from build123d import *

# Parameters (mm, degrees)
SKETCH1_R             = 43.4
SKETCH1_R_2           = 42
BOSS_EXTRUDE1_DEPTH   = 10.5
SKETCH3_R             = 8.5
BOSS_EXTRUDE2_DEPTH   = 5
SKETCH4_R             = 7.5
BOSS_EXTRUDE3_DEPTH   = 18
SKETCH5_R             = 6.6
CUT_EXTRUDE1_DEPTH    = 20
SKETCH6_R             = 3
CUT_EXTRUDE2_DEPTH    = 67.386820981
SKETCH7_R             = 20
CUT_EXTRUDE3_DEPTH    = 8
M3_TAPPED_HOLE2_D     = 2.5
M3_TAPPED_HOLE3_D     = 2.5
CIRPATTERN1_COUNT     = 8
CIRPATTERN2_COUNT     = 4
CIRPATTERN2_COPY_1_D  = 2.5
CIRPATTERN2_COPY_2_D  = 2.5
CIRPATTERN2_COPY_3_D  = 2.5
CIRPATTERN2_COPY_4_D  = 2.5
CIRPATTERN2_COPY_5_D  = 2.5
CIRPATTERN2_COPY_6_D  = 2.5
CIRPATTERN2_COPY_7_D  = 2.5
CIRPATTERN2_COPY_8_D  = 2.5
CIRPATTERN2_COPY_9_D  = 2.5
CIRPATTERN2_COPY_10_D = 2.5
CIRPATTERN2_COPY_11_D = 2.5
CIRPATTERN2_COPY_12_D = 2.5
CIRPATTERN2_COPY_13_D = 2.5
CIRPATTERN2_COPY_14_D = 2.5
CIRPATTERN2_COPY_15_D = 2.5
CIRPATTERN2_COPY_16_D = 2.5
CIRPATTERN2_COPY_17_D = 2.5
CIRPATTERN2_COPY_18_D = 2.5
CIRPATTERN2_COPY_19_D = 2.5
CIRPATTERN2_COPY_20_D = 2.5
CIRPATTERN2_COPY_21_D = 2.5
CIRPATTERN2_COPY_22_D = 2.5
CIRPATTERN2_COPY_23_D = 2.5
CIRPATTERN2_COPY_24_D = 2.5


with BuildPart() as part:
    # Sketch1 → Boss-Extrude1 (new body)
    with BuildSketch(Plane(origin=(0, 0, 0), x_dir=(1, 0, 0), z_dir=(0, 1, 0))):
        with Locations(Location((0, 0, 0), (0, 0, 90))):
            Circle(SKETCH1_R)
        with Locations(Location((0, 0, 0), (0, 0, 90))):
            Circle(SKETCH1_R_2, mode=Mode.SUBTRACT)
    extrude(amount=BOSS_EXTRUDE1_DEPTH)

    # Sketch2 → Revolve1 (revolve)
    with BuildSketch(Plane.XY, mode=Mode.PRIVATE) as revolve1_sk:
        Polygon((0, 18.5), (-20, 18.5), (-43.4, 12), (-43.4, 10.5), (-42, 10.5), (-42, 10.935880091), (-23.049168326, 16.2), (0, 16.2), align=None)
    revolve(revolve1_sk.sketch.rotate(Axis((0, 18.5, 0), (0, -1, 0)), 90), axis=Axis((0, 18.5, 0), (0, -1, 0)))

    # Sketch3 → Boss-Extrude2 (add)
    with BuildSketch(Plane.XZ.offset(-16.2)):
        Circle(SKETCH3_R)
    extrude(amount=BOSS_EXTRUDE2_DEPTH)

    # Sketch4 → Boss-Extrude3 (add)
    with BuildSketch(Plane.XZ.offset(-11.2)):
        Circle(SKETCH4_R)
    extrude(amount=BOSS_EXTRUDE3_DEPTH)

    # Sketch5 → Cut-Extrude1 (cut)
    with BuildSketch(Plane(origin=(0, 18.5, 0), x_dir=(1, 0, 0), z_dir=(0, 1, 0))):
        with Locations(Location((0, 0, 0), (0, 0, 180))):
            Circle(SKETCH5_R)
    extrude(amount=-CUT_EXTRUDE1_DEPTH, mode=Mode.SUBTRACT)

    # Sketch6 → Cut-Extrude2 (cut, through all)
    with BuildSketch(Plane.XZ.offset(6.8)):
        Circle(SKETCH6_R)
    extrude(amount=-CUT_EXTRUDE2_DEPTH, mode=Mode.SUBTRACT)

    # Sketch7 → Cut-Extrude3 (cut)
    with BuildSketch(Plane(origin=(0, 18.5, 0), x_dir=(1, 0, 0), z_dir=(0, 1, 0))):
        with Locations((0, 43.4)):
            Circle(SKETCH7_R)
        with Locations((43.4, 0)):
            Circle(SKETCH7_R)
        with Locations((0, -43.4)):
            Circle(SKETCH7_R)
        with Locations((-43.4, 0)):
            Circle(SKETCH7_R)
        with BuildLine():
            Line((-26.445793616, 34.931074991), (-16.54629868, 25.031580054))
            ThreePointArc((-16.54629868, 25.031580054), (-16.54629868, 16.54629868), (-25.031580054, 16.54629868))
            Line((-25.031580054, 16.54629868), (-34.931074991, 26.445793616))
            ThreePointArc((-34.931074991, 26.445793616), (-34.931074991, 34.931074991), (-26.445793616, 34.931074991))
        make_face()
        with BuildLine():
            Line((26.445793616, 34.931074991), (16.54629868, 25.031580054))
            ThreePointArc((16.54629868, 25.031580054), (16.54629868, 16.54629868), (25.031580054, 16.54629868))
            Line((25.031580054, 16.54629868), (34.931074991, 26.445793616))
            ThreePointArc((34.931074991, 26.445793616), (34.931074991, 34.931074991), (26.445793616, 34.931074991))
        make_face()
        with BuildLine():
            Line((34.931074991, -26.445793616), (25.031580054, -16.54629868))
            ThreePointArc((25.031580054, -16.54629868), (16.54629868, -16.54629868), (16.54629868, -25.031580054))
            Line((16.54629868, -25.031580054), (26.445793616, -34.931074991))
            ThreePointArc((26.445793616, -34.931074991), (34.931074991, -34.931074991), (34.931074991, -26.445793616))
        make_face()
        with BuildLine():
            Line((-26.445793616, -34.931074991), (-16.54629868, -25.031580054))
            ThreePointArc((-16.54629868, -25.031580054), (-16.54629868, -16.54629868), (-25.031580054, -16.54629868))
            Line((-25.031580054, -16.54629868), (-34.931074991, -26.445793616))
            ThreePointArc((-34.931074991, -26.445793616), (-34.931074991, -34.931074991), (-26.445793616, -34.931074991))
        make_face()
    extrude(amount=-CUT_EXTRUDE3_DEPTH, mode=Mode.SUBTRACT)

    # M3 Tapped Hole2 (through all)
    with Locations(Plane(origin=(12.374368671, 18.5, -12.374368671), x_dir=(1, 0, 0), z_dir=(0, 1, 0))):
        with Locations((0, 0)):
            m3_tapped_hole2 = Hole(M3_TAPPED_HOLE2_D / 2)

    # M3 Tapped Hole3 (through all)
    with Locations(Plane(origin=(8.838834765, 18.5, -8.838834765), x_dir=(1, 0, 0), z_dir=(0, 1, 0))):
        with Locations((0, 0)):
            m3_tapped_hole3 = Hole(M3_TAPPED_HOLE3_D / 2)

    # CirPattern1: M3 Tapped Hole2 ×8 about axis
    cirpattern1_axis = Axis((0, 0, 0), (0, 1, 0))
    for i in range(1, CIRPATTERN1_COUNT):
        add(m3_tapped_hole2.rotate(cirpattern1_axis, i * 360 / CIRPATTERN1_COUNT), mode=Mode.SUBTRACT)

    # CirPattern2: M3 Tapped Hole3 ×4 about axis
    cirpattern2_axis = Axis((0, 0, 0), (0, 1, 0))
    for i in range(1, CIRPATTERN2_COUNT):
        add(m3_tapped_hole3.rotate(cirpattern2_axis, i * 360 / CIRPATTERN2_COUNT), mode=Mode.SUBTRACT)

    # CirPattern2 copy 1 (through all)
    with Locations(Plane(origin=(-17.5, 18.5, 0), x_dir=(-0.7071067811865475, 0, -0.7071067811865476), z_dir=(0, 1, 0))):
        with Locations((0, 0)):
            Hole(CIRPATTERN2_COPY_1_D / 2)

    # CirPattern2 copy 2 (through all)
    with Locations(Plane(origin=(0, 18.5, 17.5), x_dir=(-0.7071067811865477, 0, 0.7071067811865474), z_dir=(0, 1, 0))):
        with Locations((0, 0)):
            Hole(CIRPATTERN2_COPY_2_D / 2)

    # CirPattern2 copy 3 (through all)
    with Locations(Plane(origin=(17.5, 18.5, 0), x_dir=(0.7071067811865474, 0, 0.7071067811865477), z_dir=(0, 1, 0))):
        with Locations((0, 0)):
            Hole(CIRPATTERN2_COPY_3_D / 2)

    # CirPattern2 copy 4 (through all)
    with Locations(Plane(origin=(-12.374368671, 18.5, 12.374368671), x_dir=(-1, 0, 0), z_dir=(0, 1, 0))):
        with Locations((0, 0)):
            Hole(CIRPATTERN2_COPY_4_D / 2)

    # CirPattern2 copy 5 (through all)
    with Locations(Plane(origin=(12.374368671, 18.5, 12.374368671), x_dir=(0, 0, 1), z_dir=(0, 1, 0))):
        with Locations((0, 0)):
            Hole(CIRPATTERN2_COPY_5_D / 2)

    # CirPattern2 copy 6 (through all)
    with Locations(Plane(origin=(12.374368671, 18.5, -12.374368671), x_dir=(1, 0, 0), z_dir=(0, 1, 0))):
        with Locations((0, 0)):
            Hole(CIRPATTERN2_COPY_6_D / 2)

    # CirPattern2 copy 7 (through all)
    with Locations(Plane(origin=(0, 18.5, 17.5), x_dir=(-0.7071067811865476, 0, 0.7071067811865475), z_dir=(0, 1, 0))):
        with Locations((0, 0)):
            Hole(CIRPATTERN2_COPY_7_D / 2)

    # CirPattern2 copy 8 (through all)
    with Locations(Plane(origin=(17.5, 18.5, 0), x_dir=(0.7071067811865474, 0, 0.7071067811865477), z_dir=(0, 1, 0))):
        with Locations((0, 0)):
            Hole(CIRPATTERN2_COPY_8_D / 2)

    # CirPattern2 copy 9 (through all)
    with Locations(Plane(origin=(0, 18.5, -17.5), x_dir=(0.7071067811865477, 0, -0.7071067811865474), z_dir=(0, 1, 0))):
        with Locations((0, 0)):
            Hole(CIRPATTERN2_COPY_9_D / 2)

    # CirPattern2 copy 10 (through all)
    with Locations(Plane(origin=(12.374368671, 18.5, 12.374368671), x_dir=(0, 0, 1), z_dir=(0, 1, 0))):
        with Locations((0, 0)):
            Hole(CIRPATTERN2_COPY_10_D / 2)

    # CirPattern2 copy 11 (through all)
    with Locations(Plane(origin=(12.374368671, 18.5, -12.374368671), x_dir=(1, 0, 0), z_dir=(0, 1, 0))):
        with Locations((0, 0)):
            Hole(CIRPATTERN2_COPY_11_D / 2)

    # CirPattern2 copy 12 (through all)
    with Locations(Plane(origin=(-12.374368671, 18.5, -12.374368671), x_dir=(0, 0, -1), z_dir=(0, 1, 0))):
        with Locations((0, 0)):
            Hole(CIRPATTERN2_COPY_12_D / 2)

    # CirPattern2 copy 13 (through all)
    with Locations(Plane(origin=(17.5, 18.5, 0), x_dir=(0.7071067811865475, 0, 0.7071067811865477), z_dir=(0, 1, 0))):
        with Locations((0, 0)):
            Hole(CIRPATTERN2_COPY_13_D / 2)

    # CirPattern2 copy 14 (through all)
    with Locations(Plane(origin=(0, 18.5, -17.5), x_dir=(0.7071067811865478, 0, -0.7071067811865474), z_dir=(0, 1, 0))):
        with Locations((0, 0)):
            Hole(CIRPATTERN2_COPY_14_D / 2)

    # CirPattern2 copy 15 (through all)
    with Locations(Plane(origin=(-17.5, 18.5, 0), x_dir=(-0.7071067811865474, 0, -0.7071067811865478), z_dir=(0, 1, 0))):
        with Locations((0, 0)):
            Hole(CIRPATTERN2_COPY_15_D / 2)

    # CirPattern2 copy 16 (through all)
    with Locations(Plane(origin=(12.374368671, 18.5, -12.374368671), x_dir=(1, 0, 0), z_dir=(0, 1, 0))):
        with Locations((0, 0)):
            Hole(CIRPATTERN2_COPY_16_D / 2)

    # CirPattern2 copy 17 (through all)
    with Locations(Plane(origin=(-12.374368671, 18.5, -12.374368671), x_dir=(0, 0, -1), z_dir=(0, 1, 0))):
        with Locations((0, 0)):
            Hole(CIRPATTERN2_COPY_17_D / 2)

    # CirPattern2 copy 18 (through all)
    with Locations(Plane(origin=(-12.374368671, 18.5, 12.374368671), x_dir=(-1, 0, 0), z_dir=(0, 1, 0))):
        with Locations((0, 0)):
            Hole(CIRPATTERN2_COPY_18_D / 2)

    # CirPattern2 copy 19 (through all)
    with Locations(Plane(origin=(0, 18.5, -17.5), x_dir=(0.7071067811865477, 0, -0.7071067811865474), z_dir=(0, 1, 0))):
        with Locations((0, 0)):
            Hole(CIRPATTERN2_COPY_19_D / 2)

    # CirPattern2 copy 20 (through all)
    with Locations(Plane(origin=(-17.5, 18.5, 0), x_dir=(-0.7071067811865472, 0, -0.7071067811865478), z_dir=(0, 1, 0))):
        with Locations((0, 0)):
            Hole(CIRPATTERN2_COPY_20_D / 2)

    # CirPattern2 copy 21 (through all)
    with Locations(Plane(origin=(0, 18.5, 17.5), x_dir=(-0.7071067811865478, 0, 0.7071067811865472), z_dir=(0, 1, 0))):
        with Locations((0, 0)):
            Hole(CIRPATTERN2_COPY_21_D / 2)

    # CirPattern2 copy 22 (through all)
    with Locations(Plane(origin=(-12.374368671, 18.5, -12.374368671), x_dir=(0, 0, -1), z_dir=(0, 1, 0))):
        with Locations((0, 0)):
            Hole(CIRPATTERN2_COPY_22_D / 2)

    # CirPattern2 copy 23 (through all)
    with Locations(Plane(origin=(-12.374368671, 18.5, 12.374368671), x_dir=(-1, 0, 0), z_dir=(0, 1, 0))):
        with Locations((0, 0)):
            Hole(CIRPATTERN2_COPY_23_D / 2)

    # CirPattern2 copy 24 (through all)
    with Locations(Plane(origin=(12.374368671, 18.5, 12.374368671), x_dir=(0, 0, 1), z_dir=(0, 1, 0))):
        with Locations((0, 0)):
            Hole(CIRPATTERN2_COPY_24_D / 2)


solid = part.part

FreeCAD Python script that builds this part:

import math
import FreeCAD as App
import Part
import Sketcher
Q = App.Units.Quantity

doc = App.newDocument("Part")
body = doc.addObject("PartDesign::Body", "Body")

# Sketch on XZ plane
sketch1 = doc.addObject("Sketcher::SketchObject", "Sketch")
body.addObject(sketch1)
sketch1.AttachmentSupport = (doc.XZ_Plane, [""])
sketch1.MapMode = "FlatFace"
sketch1.addGeometry(Part.Circle(App.Vector(0, 0, 0), App.Vector(0, 0, 1), 43), False)
sketch1.addGeometry(Part.Circle(App.Vector(0, 0, 0), App.Vector(0, 0, 1), 42), False)
sketch1.addConstraint(Sketcher.Constraint("Coincident", 0, 3, -1, 1))
sketch1.addConstraint(Sketcher.Constraint("Coincident", 1, 3, -1, 1))
sketch1.addConstraint(Sketcher.Constraint("Diameter", 1, Q("84 mm")))
sketch1.addConstraint(Sketcher.Constraint("Diameter", 0, Q("86.8 mm")))
pad1 = doc.addObject("PartDesign::Pad", "Pad")
body.addObject(pad1)
pad1.Profile = sketch1
pad1.Length = 10.5
pad1.Reversed = True

# Sketch on XY plane
sketch2 = doc.addObject("Sketcher::SketchObject", "Sketch001")
body.addObject(sketch2)
sketch2.AttachmentSupport = (doc.XY_Plane, [""])
sketch2.MapMode = "FlatFace"
sketch2.addGeometry(Part.LineSegment(App.Vector(0, 18.5, 0), App.Vector(-20, 18.5, 0)), False)
sketch2.addGeometry(Part.LineSegment(App.Vector(-20, 18.5, 0), App.Vector(-43.4, 12, 0)), False)
sketch2.addGeometry(Part.LineSegment(App.Vector(-43.4, 12, 0), App.Vector(-43.4, 10.5, 0)), False)
sketch2.addGeometry(Part.LineSegment(App.Vector(-43.4, 10.5, 0), App.Vector(-42, 10.5, 0)), False)
sketch2.addGeometry(Part.LineSegment(App.Vector(-42, 10.5, 0), App.Vector(-42, 10.94, 0)), False)
sketch2.addGeometry(Part.LineSegment(App.Vector(-42, 10.94, 0), App.Vector(-23.05, 16.2, 0)), False)
sketch2.addGeometry(Part.LineSegment(App.Vector(-23.05, 16.2, 0), App.Vector(0, 16.2, 0)), False)
sketch2.addGeometry(Part.LineSegment(App.Vector(0, 16.2, 0), App.Vector(0, 18.5, 0)), False)
sketch2.addConstraint(Sketcher.Constraint("Coincident", 0, 2, 1, 1))
sketch2.addConstraint(Sketcher.Constraint("Coincident", 1, 2, 2, 1))
sketch2.addConstraint(Sketcher.Constraint("Coincident", 2, 2, 3, 1))
sketch2.addConstraint(Sketcher.Constraint("Coincident", 3, 2, 4, 1))
sketch2.addConstraint(Sketcher.Constraint("Coincident", 4, 2, 5, 1))
sketch2.addConstraint(Sketcher.Constraint("Coincident", 5, 2, 6, 1))
sketch2.addConstraint(Sketcher.Constraint("Coincident", 6, 2, 7, 1))
sketch2.addConstraint(Sketcher.Constraint("Coincident", 7, 2, 0, 1))
sketch2.addConstraint(Sketcher.Constraint("Horizontal", 0))
sketch2.addConstraint(Sketcher.Constraint("Vertical", 2))
sketch2.addConstraint(Sketcher.Constraint("Horizontal", 3))
sketch2.addConstraint(Sketcher.Constraint("Vertical", 4))
sketch2.addConstraint(Sketcher.Constraint("Horizontal", 6))
sketch2.addConstraint(Sketcher.Constraint("Vertical", 7))
sketch2.addConstraint(Sketcher.Constraint("PointOnObject", 6, 2, -2))
sketch2.addConstraint(Sketcher.Constraint("Parallel", 1, 5))
sketch2.addConstraint(Sketcher.Constraint("DistanceX", 0, 2, 0, 1, Q("20 mm")))
sketch2.addConstraint(Sketcher.Constraint("DistanceX", 3, 1, 3, 2, Q("1.4 mm")))
sketch2.addConstraint(Sketcher.Constraint("DistanceY", 2, 2, 2, 1, Q("1.5 mm")))
sketch2.addConstraint(Sketcher.Constraint("DistanceY", 7, 1, 7, 2, Q("2.3 mm")))
sketch2.addConstraint(Sketcher.Constraint("DistanceY", -1, 1, 1, 2, Q("12 mm")))
sketch2.addConstraint(Sketcher.Constraint("DistanceX", 3, 2, -1, 1, Q("42 mm")))
sketch2.addConstraint(Sketcher.Constraint("DistanceY", 2, 2, 0, 2, Q("8 mm")))
sketch2.addConstraint(Sketcher.Constraint("DistanceX", 6, 1, 6, 2, Q("23.049168 mm")))
revolution = doc.addObject("PartDesign::Revolution", "Revolution")
body.addObject(revolution)
revolution.Profile = sketch2
revolution.ReferenceAxis = (sketch2, ["V_Axis"])
revolution.Angle = 360

# Sketch on XZ plane
sketch3 = doc.addObject("Sketcher::SketchObject", "Sketch002")
body.addObject(sketch3)
sketch3.AttachmentSupport = (doc.XZ_Plane, [""])
sketch3.MapMode = "FlatFace"
sketch3.AttachmentOffset = App.Placement(App.Vector(0, 0, -16.2), App.Rotation())
sketch3.addGeometry(Part.Circle(App.Vector(0, 0, 0), App.Vector(0, 0, 1), 8), False)
sketch3.addConstraint(Sketcher.Constraint("Coincident", 0, 3, -1, 1))
sketch3.addConstraint(Sketcher.Constraint("Diameter", 0, Q("17 mm")))
pad2 = doc.addObject("PartDesign::Pad", "Pad001")
body.addObject(pad2)
pad2.Profile = sketch3
pad2.Length = 5

# Sketch on XZ plane
sketch4 = doc.addObject("Sketcher::SketchObject", "Sketch003")
body.addObject(sketch4)
sketch4.AttachmentSupport = (doc.XZ_Plane, [""])
sketch4.MapMode = "FlatFace"
sketch4.AttachmentOffset = App.Placement(App.Vector(0, 0, -11.2), App.Rotation())
sketch4.addGeometry(Part.Circle(App.Vector(0, 0, 0), App.Vector(0, 0, 1), 8), False)
sketch4.addConstraint(Sketcher.Constraint("Coincident", 0, 3, -1, 1))
sketch4.addConstraint(Sketcher.Constraint("Diameter", 0, Q("15 mm")))
pad3 = doc.addObject("PartDesign::Pad", "Pad002")
body.addObject(pad3)
pad3.Profile = sketch4
pad3.Length = 18

# Sketch on XZ plane
sketch5 = doc.addObject("Sketcher::SketchObject", "Sketch004")
body.addObject(sketch5)
sketch5.AttachmentSupport = (doc.XZ_Plane, [""])
sketch5.MapMode = "FlatFace"
sketch5.AttachmentOffset = App.Placement(App.Vector(0, 0, -18.5), App.Rotation())
sketch5.addGeometry(Part.Circle(App.Vector(0, 0, 0), App.Vector(0, 0, 1), 7), False)
sketch5.addConstraint(Sketcher.Constraint("Coincident", 0, 3, -1, 1))
sketch5.addConstraint(Sketcher.Constraint("Diameter", 0, Q("13.2 mm")))
pocket1 = doc.addObject("PartDesign::Pocket", "Pocket")
body.addObject(pocket1)
pocket1.Profile = sketch5
pocket1.Length = 20
pocket1.Reversed = True

# Sketch on XZ plane
sketch6 = doc.addObject("Sketcher::SketchObject", "Sketch005")
body.addObject(sketch6)
sketch6.AttachmentSupport = (doc.XZ_Plane, [""])
sketch6.MapMode = "FlatFace"
sketch6.AttachmentOffset = App.Placement(App.Vector(0, 0, 6.8), App.Rotation())
sketch6.addGeometry(Part.Circle(App.Vector(0, 0, 0), App.Vector(0, 0, 1), 3), False)
sketch6.addConstraint(Sketcher.Constraint("Coincident", 0, 3, -1, 1))
sketch6.addConstraint(Sketcher.Constraint("Diameter", 0, Q("6 mm")))
pocket2 = doc.addObject("PartDesign::Pocket", "Pocket001")
body.addObject(pocket2)
pocket2.Profile = sketch6
pocket2.Type = "ThroughAll"

# Sketch on XZ plane
sketch7 = doc.addObject("Sketcher::SketchObject", "Sketch006")
body.addObject(sketch7)
sketch7.AttachmentSupport = (doc.XZ_Plane, [""])
sketch7.MapMode = "FlatFace"
sketch7.AttachmentOffset = App.Placement(App.Vector(0, 0, -18.5), App.Rotation())
sketch7.addGeometry(Part.Circle(App.Vector(0, -43, 0), App.Vector(0, 0, 1), 20), False)
sketch7.addGeometry(Part.Circle(App.Vector(43, 0, 0), App.Vector(0, 0, 1), 20), False)
sketch7.addGeometry(Part.Circle(App.Vector(0, 43, 0), App.Vector(0, 0, 1), 20), False)
sketch7.addGeometry(Part.Circle(App.Vector(-43, 0, 0), App.Vector(0, 0, 1), 20), False)
sketch7.addGeometry(Part.LineSegment(App.Vector(-17, -25, 0), App.Vector(-26, -35, 0)), False)
sketch7.addGeometry(Part.ArcOfCircle(Part.Circle(App.Vector(-31, -31, 0), App.Vector(0, 0, 1), 6), math.radians(135), math.radians(315)), False)
sketch7.addGeometry(Part.LineSegment(App.Vector(-35, -26, 0), App.Vector(-25, -17, 0)), False)
sketch7.addGeometry(Part.ArcOfCircle(Part.Circle(App.Vector(-21, -21, 0), App.Vector(0, 0, 1), 6), math.radians(-45), math.radians(135)), False)
sketch7.addGeometry(Part.LineSegment(App.Vector(26, -35, 0), App.Vector(17, -25, 0)), False)
sketch7.addGeometry(Part.ArcOfCircle(Part.Circle(App.Vector(21, -21, 0), App.Vector(0, 0, 1), 6), math.radians(45), math.radians(225)), False)
sketch7.addGeometry(Part.LineSegment(App.Vector(25, -17, 0), App.Vector(35, -26, 0)), False)
sketch7.addGeometry(Part.ArcOfCircle(Part.Circle(App.Vector(31, -31, 0), App.Vector(0, 0, 1), 6), math.radians(-135), math.radians(45)), False)
sketch7.addGeometry(Part.LineSegment(App.Vector(35, 26, 0), App.Vector(25, 17, 0)), False)
sketch7.addGeometry(Part.ArcOfCircle(Part.Circle(App.Vector(21, 21, 0), App.Vector(0, 0, 1), 6), math.radians(135), math.radians(315)), False)
sketch7.addGeometry(Part.LineSegment(App.Vector(17, 25, 0), App.Vector(26, 35, 0)), False)
sketch7.addGeometry(Part.ArcOfCircle(Part.Circle(App.Vector(31, 31, 0), App.Vector(0, 0, 1), 6), math.radians(-45), math.radians(135)), False)
sketch7.addGeometry(Part.LineSegment(App.Vector(-26, 35, 0), App.Vector(-17, 25, 0)), False)
sketch7.addGeometry(Part.ArcOfCircle(Part.Circle(App.Vector(-21, 21, 0), App.Vector(0, 0, 1), 6), math.radians(-135), math.radians(45)), False)
sketch7.addGeometry(Part.LineSegment(App.Vector(-25, 17, 0), App.Vector(-35, 26, 0)), False)
sketch7.addGeometry(Part.ArcOfCircle(Part.Circle(App.Vector(-31, 31, 0), App.Vector(0, 0, 1), 6), math.radians(45), math.radians(225)), False)
sketch7.addConstraint(Sketcher.Constraint("Tangent", 4, 2, 5, 2))
sketch7.addConstraint(Sketcher.Constraint("Tangent", 5, 1, 6, 1))
sketch7.addConstraint(Sketcher.Constraint("Tangent", 6, 2, 7, 2))
sketch7.addConstraint(Sketcher.Constraint("Tangent", 7, 1, 4, 1))
sketch7.addConstraint(Sketcher.Constraint("Tangent", 8, 2, 9, 2))
sketch7.addConstraint(Sketcher.Constraint("Tangent", 9, 1, 10, 1))
sketch7.addConstraint(Sketcher.Constraint("Tangent", 10, 2, 11, 2))
sketch7.addConstraint(Sketcher.Constraint("Tangent", 11, 1, 8, 1))
sketch7.addConstraint(Sketcher.Constraint("Tangent", 12, 2, 13, 2))
sketch7.addConstraint(Sketcher.Constraint("Tangent", 13, 1, 14, 1))
sketch7.addConstraint(Sketcher.Constraint("Tangent", 14, 2, 15, 2))
sketch7.addConstraint(Sketcher.Constraint("Tangent", 15, 1, 12, 1))
sketch7.addConstraint(Sketcher.Constraint("Tangent", 16, 2, 17, 2))
sketch7.addConstraint(Sketcher.Constraint("Tangent", 17, 1, 18, 1))
sketch7.addConstraint(Sketcher.Constraint("Tangent", 18, 2, 19, 2))
sketch7.addConstraint(Sketcher.Constraint("Tangent", 19, 1, 16, 1))
sketch7.addConstraint(Sketcher.Constraint("Equal", 0, 1))
sketch7.addConstraint(Sketcher.Constraint("Equal", 1, 2))
sketch7.addConstraint(Sketcher.Constraint("Equal", 2, 3))
sketch7.addConstraint(Sketcher.Constraint("Equal", 5, 7))
sketch7.addConstraint(Sketcher.Constraint("Equal", 7, 9))
sketch7.addConstraint(Sketcher.Constraint("Equal", 9, 11))
sketch7.addConstraint(Sketcher.Constraint("Equal", 11, 13))
sketch7.addConstraint(Sketcher.Constraint("Equal", 13, 15))
sketch7.addConstraint(Sketcher.Constraint("Equal", 15, 17))
sketch7.addConstraint(Sketcher.Constraint("Equal", 17, 19))
sketch7.addConstraint(Sketcher.Constraint("Symmetric", 0, 3, 2, 3, -1, 1))
sketch7.addConstraint(Sketcher.Constraint("Symmetric", 1, 3, 3, 3, -1, 1))
sketch7.addConstraint(Sketcher.Constraint("Symmetric", 7, 3, 13, 3, -1, 1))
sketch7.addConstraint(Sketcher.Constraint("Symmetric", 5, 3, 15, 3, -1, 1))
sketch7.addConstraint(Sketcher.Constraint("Symmetric", 9, 3, 17, 3, -1, 1))
sketch7.addConstraint(Sketcher.Constraint("Symmetric", 11, 3, 19, 3, -1, 1))
sketch7.addConstraint(Sketcher.Constraint("Symmetric", 7, 3, 9, 3, -2))
sketch7.addConstraint(Sketcher.Constraint("Symmetric", 5, 3, 11, 3, -2))
sketch7.addConstraint(Sketcher.Constraint("PointOnObject", 0, 3, -2))
sketch7.addConstraint(Sketcher.Constraint("PointOnObject", 1, 3, -1))
sketch7.addConstraint(Sketcher.Constraint("Perpendicular", 6, 8))
sketch7.addConstraint(Sketcher.Constraint("Diameter", 0, Q("40 mm")))
sketch7.addConstraint(Sketcher.Constraint("Radius", 5, Q("6 mm")))
sketch7.addConstraint(Sketcher.Constraint("Distance", 4, Q("14 mm")))
sketch7.addConstraint(Sketcher.Constraint("DistanceY", 0, 3, -1, 1, Q("43.4 mm")))
sketch7.addConstraint(Sketcher.Constraint("DistanceX", -1, 1, 1, 3, Q("43.4 mm")))
sketch7.addConstraint(Sketcher.Constraint("DistanceY", 6, 2, -1, 1, Q("16.546299 mm")))
sketch7.addConstraint(Sketcher.Constraint("DistanceX", 7, 1, -1, 1, Q("16.546299 mm")))
pocket3 = doc.addObject("PartDesign::Pocket", "Pocket002")
body.addObject(pocket3)
pocket3.Profile = sketch7
pocket3.Length = 8
pocket3.Reversed = True

# Sketch on XZ plane
sketch8 = doc.addObject("Sketcher::SketchObject", "Sketch007")
body.addObject(sketch8)
sketch8.AttachmentSupport = (doc.XZ_Plane, [""])
sketch8.MapMode = "FlatFace"
sketch8.AttachmentOffset = App.Placement(App.Vector(0, 0, -18.5), App.Rotation())
sketch8.addGeometry(Part.Circle(App.Vector(12.4, -12.4, 0), App.Vector(0, 0, 1), 1.2), False)
sketch8.addConstraint(Sketcher.Constraint("Diameter", 0, Q("2.5 mm")))
sketch8.addConstraint(Sketcher.Constraint("DistanceX", -1, 1, 0, 3, Q("12.374369 mm")))
sketch8.addConstraint(Sketcher.Constraint("DistanceY", 0, 3, -1, 1, Q("12.374369 mm")))
doc.recompute()
hole = doc.addObject("PartDesign::Hole", "Hole")
body.addObject(hole)
hole.Profile = sketch8
hole.ThreadType = "None"
hole.Diameter = 2.5
hole.DepthType = "ThroughAll"
hole.Reversed = True

# Sketch on XZ plane
sketch9 = doc.addObject("Sketcher::SketchObject", "Sketch008")
body.addObject(sketch9)
sketch9.AttachmentSupport = (doc.XZ_Plane, [""])
sketch9.MapMode = "FlatFace"
sketch9.AttachmentOffset = App.Placement(App.Vector(0, 0, -18.5), App.Rotation())
sketch9.addGeometry(Part.Circle(App.Vector(8.8, -8.8, 0), App.Vector(0, 0, 1), 1.2), False)
sketch9.addConstraint(Sketcher.Constraint("Diameter", 0, Q("2.5 mm")))
sketch9.addConstraint(Sketcher.Constraint("DistanceX", -1, 1, 0, 3, Q("8.838835 mm")))
sketch9.addConstraint(Sketcher.Constraint("DistanceY", 0, 3, -1, 1, Q("8.838835 mm")))
doc.recompute()
hole2 = doc.addObject("PartDesign::Hole", "Hole001")
body.addObject(hole2)
hole2.Profile = sketch9
hole2.ThreadType = "None"
hole2.Diameter = 2.5
hole2.DepthType = "ThroughAll"
hole2.Reversed = True
doc.recompute()

polarpattern = doc.addObject("PartDesign::PolarPattern", "PolarPattern")
body.addObject(polarpattern)
polarpattern.Originals = [hole]
polarpattern.Axis = (doc.Y_Axis, [""])
polarpattern.Angle = 360
polarpattern.Occurrences = 8
body.Tip = polarpattern
doc.recompute()

polarpattern2 = doc.addObject("PartDesign::PolarPattern", "PolarPattern001")
body.addObject(polarpattern2)
polarpattern2.Originals = [hole2]
polarpattern2.Axis = (doc.Y_Axis, [""])
polarpattern2.Angle = 360
polarpattern2.Occurrences = 4
body.Tip = polarpattern2

# Sketch on XZ plane
sketch10 = doc.addObject("Sketcher::SketchObject", "Sketch009")
body.addObject(sketch10)
sketch10.AttachmentSupport = (doc.XZ_Plane, [""])
sketch10.MapMode = "FlatFace"
sketch10.AttachmentOffset = App.Placement(App.Vector(0, 0, -18.5), App.Rotation())
sketch10.addGeometry(Part.Circle(App.Vector(-17.5, 0, 0), App.Vector(0, 0, 1), 1.2), False)
sketch10.addConstraint(Sketcher.Constraint("PointOnObject", 0, 3, -1))
sketch10.addConstraint(Sketcher.Constraint("Diameter", 0, Q("2.5 mm")))
sketch10.addConstraint(Sketcher.Constraint("DistanceX", 0, 3, -1, 1, Q("17.5 mm")))
doc.recompute()
hole3 = doc.addObject("PartDesign::Hole", "Hole002")
body.addObject(hole3)
hole3.Profile = sketch10
hole3.ThreadType = "None"
hole3.Diameter = 2.5
hole3.DepthType = "ThroughAll"
hole3.Reversed = True

# Sketch on XZ plane
sketch11 = doc.addObject("Sketcher::SketchObject", "Sketch010")
body.addObject(sketch11)
sketch11.AttachmentSupport = (doc.XZ_Plane, [""])
sketch11.MapMode = "FlatFace"
sketch11.AttachmentOffset = App.Placement(App.Vector(0, 0, -18.5), App.Rotation())
sketch11.addGeometry(Part.Circle(App.Vector(0, 17.5, 0), App.Vector(0, 0, 1), 1.2), False)
sketch11.addConstraint(Sketcher.Constraint("PointOnObject", 0, 3, -2))
sketch11.addConstraint(Sketcher.Constraint("Diameter", 0, Q("2.5 mm")))
sketch11.addConstraint(Sketcher.Constraint("DistanceY", -1, 1, 0, 3, Q("17.5 mm")))
doc.recompute()
hole4 = doc.addObject("PartDesign::Hole", "Hole003")
body.addObject(hole4)
hole4.Profile = sketch11
hole4.ThreadType = "None"
hole4.Diameter = 2.5
hole4.DepthType = "ThroughAll"
hole4.Reversed = True

# Sketch on XZ plane
sketch12 = doc.addObject("Sketcher::SketchObject", "Sketch011")
body.addObject(sketch12)
sketch12.AttachmentSupport = (doc.XZ_Plane, [""])
sketch12.MapMode = "FlatFace"
sketch12.AttachmentOffset = App.Placement(App.Vector(0, 0, -18.5), App.Rotation())
sketch12.addGeometry(Part.Circle(App.Vector(17.5, 0, 0), App.Vector(0, 0, 1), 1.2), False)
sketch12.addConstraint(Sketcher.Constraint("PointOnObject", 0, 3, -1))
sketch12.addConstraint(Sketcher.Constraint("Diameter", 0, Q("2.5 mm")))
sketch12.addConstraint(Sketcher.Constraint("DistanceX", -1, 1, 0, 3, Q("17.5 mm")))
doc.recompute()
hole5 = doc.addObject("PartDesign::Hole", "Hole004")
body.addObject(hole5)
hole5.Profile = sketch12
hole5.ThreadType = "None"
hole5.Diameter = 2.5
hole5.DepthType = "ThroughAll"
hole5.Reversed = True

# Sketch on XZ plane
sketch13 = doc.addObject("Sketcher::SketchObject", "Sketch012")
body.addObject(sketch13)
sketch13.AttachmentSupport = (doc.XZ_Plane, [""])
sketch13.MapMode = "FlatFace"
sketch13.AttachmentOffset = App.Placement(App.Vector(0, 0, -18.5), App.Rotation())
sketch13.addGeometry(Part.Circle(App.Vector(-12.4, 12.4, 0), App.Vector(0, 0, 1), 1.2), False)
sketch13.addConstraint(Sketcher.Constraint("Diameter", 0, Q("2.5 mm")))
sketch13.addConstraint(Sketcher.Constraint("DistanceX", 0, 3, -1, 1, Q("12.374369 mm")))
sketch13.addConstraint(Sketcher.Constraint("DistanceY", -1, 1, 0, 3, Q("12.374369 mm")))
doc.recompute()
hole6 = doc.addObject("PartDesign::Hole", "Hole005")
body.addObject(hole6)
hole6.Profile = sketch13
hole6.ThreadType = "None"
hole6.Diameter = 2.5
hole6.DepthType = "ThroughAll"
hole6.Reversed = True

# Sketch on XZ plane
sketch14 = doc.addObject("Sketcher::SketchObject", "Sketch013")
body.addObject(sketch14)
sketch14.AttachmentSupport = (doc.XZ_Plane, [""])
sketch14.MapMode = "FlatFace"
sketch14.AttachmentOffset = App.Placement(App.Vector(0, 0, -18.5), App.Rotation())
sketch14.addGeometry(Part.Circle(App.Vector(12.4, 12.4, 0), App.Vector(0, 0, 1), 1.2), False)
sketch14.addConstraint(Sketcher.Constraint("Diameter", 0, Q("2.5 mm")))
sketch14.addConstraint(Sketcher.Constraint("DistanceX", -1, 1, 0, 3, Q("12.374369 mm")))
sketch14.addConstraint(Sketcher.Constraint("DistanceY", -1, 1, 0, 3, Q("12.374369 mm")))
doc.recompute()
hole7 = doc.addObject("PartDesign::Hole", "Hole006")
body.addObject(hole7)
hole7.Profile = sketch14
hole7.ThreadType = "None"
hole7.Diameter = 2.5
hole7.DepthType = "ThroughAll"
hole7.Reversed = True

# Sketch on XZ plane
sketch15 = doc.addObject("Sketcher::SketchObject", "Sketch014")
body.addObject(sketch15)
sketch15.AttachmentSupport = (doc.XZ_Plane, [""])
sketch15.MapMode = "FlatFace"
sketch15.AttachmentOffset = App.Placement(App.Vector(0, 0, -18.5), App.Rotation())
sketch15.addGeometry(Part.Circle(App.Vector(12.4, -12.4, 0), App.Vector(0, 0, 1), 1.2), False)
sketch15.addConstraint(Sketcher.Constraint("Diameter", 0, Q("2.5 mm")))
sketch15.addConstraint(Sketcher.Constraint("DistanceX", -1, 1, 0, 3, Q("12.374369 mm")))
sketch15.addConstraint(Sketcher.Constraint("DistanceY", 0, 3, -1, 1, Q("12.374369 mm")))
doc.recompute()
hole8 = doc.addObject("PartDesign::Hole", "Hole007")
body.addObject(hole8)
hole8.Profile = sketch15
hole8.ThreadType = "None"
hole8.Diameter = 2.5
hole8.DepthType = "ThroughAll"
hole8.Reversed = True

# Sketch on XZ plane
sketch16 = doc.addObject("Sketcher::SketchObject", "Sketch015")
body.addObject(sketch16)
sketch16.AttachmentSupport = (doc.XZ_Plane, [""])
sketch16.MapMode = "FlatFace"
sketch16.AttachmentOffset = App.Placement(App.Vector(0, 0, -18.5), App.Rotation())
sketch16.addGeometry(Part.Circle(App.Vector(0, 17.5, 0), App.Vector(0, 0, 1), 1.2), False)
sketch16.addConstraint(Sketcher.Constraint("PointOnObject", 0, 3, -2))
sketch16.addConstraint(Sketcher.Constraint("Diameter", 0, Q("2.5 mm")))
sketch16.addConstraint(Sketcher.Constraint("DistanceY", -1, 1, 0, 3, Q("17.5 mm")))
doc.recompute()
hole9 = doc.addObject("PartDesign::Hole", "Hole008")
body.addObject(hole9)
hole9.Profile = sketch16
hole9.ThreadType = "None"
hole9.Diameter = 2.5
hole9.DepthType = "ThroughAll"
hole9.Reversed = True

# Sketch on XZ plane
sketch17 = doc.addObject("Sketcher::SketchObject", "Sketch016")
body.addObject(sketch17)
sketch17.AttachmentSupport = (doc.XZ_Plane, [""])
sketch17.MapMode = "FlatFace"
sketch17.AttachmentOffset = App.Placement(App.Vector(0, 0, -18.5), App.Rotation())
sketch17.addGeometry(Part.Circle(App.Vector(17.5, 0, 0), App.Vector(0, 0, 1), 1.2), False)
sketch17.addConstraint(Sketcher.Constraint("PointOnObject", 0, 3, -1))
sketch17.addConstraint(Sketcher.Constraint("Diameter", 0, Q("2.5 mm")))
sketch17.addConstraint(Sketcher.Constraint("DistanceX", -1, 1, 0, 3, Q("17.5 mm")))
doc.recompute()
hole10 = doc.addObject("PartDesign::Hole", "Hole009")
body.addObject(hole10)
hole10.Profile = sketch17
hole10.ThreadType = "None"
hole10.Diameter = 2.5
hole10.DepthType = "ThroughAll"
hole10.Reversed = True

# Sketch on XZ plane
sketch18 = doc.addObject("Sketcher::SketchObject", "Sketch017")
body.addObject(sketch18)
sketch18.AttachmentSupport = (doc.XZ_Plane, [""])
sketch18.MapMode = "FlatFace"
sketch18.AttachmentOffset = App.Placement(App.Vector(0, 0, -18.5), App.Rotation())
sketch18.addGeometry(Part.Circle(App.Vector(0, -17.5, 0), App.Vector(0, 0, 1), 1.2), False)
sketch18.addConstraint(Sketcher.Constraint("PointOnObject", 0, 3, -2))
sketch18.addConstraint(Sketcher.Constraint("Diameter", 0, Q("2.5 mm")))
sketch18.addConstraint(Sketcher.Constraint("DistanceY", 0, 3, -1, 1, Q("17.5 mm")))
doc.recompute()
hole11 = doc.addObject("PartDesign::Hole", "Hole010")
body.addObject(hole11)
hole11.Profile = sketch18
hole11.ThreadType = "None"
hole11.Diameter = 2.5
hole11.DepthType = "ThroughAll"
hole11.Reversed = True

# Sketch on XZ plane
sketch19 = doc.addObject("Sketcher::SketchObject", "Sketch018")
body.addObject(sketch19)
sketch19.AttachmentSupport = (doc.XZ_Plane, [""])
sketch19.MapMode = "FlatFace"
sketch19.AttachmentOffset = App.Placement(App.Vector(0, 0, -18.5), App.Rotation())
sketch19.addGeometry(Part.Circle(App.Vector(12.4, 12.4, 0), App.Vector(0, 0, 1), 1.2), False)
sketch19.addConstraint(Sketcher.Constraint("Diameter", 0, Q("2.5 mm")))
sketch19.addConstraint(Sketcher.Constraint("DistanceX", -1, 1, 0, 3, Q("12.374369 mm")))
sketch19.addConstraint(Sketcher.Constraint("DistanceY", -1, 1, 0, 3, Q("12.374369 mm")))
doc.recompute()
hole12 = doc.addObject("PartDesign::Hole", "Hole011")
body.addObject(hole12)
hole12.Profile = sketch19
hole12.ThreadType = "None"
hole12.Diameter = 2.5
hole12.DepthType = "ThroughAll"
hole12.Reversed = True

# Sketch on XZ plane
sketch20 = doc.addObject("Sketcher::SketchObject", "Sketch019")
body.addObject(sketch20)
sketch20.AttachmentSupport = (doc.XZ_Plane, [""])
sketch20.MapMode = "FlatFace"
sketch20.AttachmentOffset = App.Placement(App.Vector(0, 0, -18.5), App.Rotation())
sketch20.addGeometry(Part.Circle(App.Vector(12.4, -12.4, 0), App.Vector(0, 0, 1), 1.2), False)
sketch20.addConstraint(Sketcher.Constraint("Diameter", 0, Q("2.5 mm")))
sketch20.addConstraint(Sketcher.Constraint("DistanceX", -1, 1, 0, 3, Q("12.374369 mm")))
sketch20.addConstraint(Sketcher.Constraint("DistanceY", 0, 3, -1, 1, Q("12.374369 mm")))
doc.recompute()
hole13 = doc.addObject("PartDesign::Hole", "Hole012")
body.addObject(hole13)
hole13.Profile = sketch20
hole13.ThreadType = "None"
hole13.Diameter = 2.5
hole13.DepthType = "ThroughAll"
hole13.Reversed = True

# Sketch on XZ plane
sketch21 = doc.addObject("Sketcher::SketchObject", "Sketch020")
body.addObject(sketch21)
sketch21.AttachmentSupport = (doc.XZ_Plane, [""])
sketch21.MapMode = "FlatFace"
sketch21.AttachmentOffset = App.Placement(App.Vector(0, 0, -18.5), App.Rotation())
sketch21.addGeometry(Part.Circle(App.Vector(-12.4, -12.4, 0), App.Vector(0, 0, 1), 1.2), False)
sketch21.addConstraint(Sketcher.Constraint("Diameter", 0, Q("2.5 mm")))
sketch21.addConstraint(Sketcher.Constraint("DistanceX", 0, 3, -1, 1, Q("12.374369 mm")))
sketch21.addConstraint(Sketcher.Constraint("DistanceY", 0, 3, -1, 1, Q("12.374369 mm")))
doc.recompute()
hole14 = doc.addObject("PartDesign::Hole", "Hole013")
body.addObject(hole14)
hole14.Profile = sketch21
hole14.ThreadType = "None"
hole14.Diameter = 2.5
hole14.DepthType = "ThroughAll"
hole14.Reversed = True

# Sketch on XZ plane
sketch22 = doc.addObject("Sketcher::SketchObject", "Sketch021")
body.addObject(sketch22)
sketch22.AttachmentSupport = (doc.XZ_Plane, [""])
sketch22.MapMode = "FlatFace"
sketch22.AttachmentOffset = App.Placement(App.Vector(0, 0, -18.5), App.Rotation())
sketch22.addGeometry(Part.Circle(App.Vector(17.5, 0, 0), App.Vector(0, 0, 1), 1.2), False)
sketch22.addConstraint(Sketcher.Constraint("PointOnObject", 0, 3, -1))
sketch22.addConstraint(Sketcher.Constraint("Diameter", 0, Q("2.5 mm")))
sketch22.addConstraint(Sketcher.Constraint("DistanceX", -1, 1, 0, 3, Q("17.5 mm")))
doc.recompute()
hole15 = doc.addObject("PartDesign::Hole", "Hole014")
body.addObject(hole15)
hole15.Profile = sketch22
hole15.ThreadType = "None"
hole15.Diameter = 2.5
hole15.DepthType = "ThroughAll"
hole15.Reversed = True

# Sketch on XZ plane
sketch23 = doc.addObject("Sketcher::SketchObject", "Sketch022")
body.addObject(sketch23)
sketch23.AttachmentSupport = (doc.XZ_Plane, [""])
sketch23.MapMode = "FlatFace"
sketch23.AttachmentOffset = App.Placement(App.Vector(0, 0, -18.5), App.Rotation())
sketch23.addGeometry(Part.Circle(App.Vector(0, -17.5, 0), App.Vector(0, 0, 1), 1.2), False)
sketch23.addConstraint(Sketcher.Constraint("PointOnObject", 0, 3, -2))
sketch23.addConstraint(Sketcher.Constraint("Diameter", 0, Q("2.5 mm")))
sketch23.addConstraint(Sketcher.Constraint("DistanceY", 0, 3, -1, 1, Q("17.5 mm")))
doc.recompute()
hole16 = doc.addObject("PartDesign::Hole", "Hole015")
body.addObject(hole16)
hole16.Profile = sketch23
hole16.ThreadType = "None"
hole16.Diameter = 2.5
hole16.DepthType = "ThroughAll"
hole16.Reversed = True

# Sketch on XZ plane
sketch24 = doc.addObject("Sketcher::SketchObject", "Sketch023")
body.addObject(sketch24)
sketch24.AttachmentSupport = (doc.XZ_Plane, [""])
sketch24.MapMode = "FlatFace"
sketch24.AttachmentOffset = App.Placement(App.Vector(0, 0, -18.5), App.Rotation())
sketch24.addGeometry(Part.Circle(App.Vector(-17.5, 0, 0), App.Vector(0, 0, 1), 1.2), False)
sketch24.addConstraint(Sketcher.Constraint("PointOnObject", 0, 3, -1))
sketch24.addConstraint(Sketcher.Constraint("Diameter", 0, Q("2.5 mm")))
sketch24.addConstraint(Sketcher.Constraint("DistanceX", 0, 3, -1, 1, Q("17.5 mm")))
doc.recompute()
hole17 = doc.addObject("PartDesign::Hole", "Hole016")
body.addObject(hole17)
hole17.Profile = sketch24
hole17.ThreadType = "None"
hole17.Diameter = 2.5
hole17.DepthType = "ThroughAll"
hole17.Reversed = True

# Sketch on XZ plane
sketch25 = doc.addObject("Sketcher::SketchObject", "Sketch024")
body.addObject(sketch25)
sketch25.AttachmentSupport = (doc.XZ_Plane, [""])
sketch25.MapMode = "FlatFace"
sketch25.AttachmentOffset = App.Placement(App.Vector(0, 0, -18.5), App.Rotation())
sketch25.addGeometry(Part.Circle(App.Vector(12.4, -12.4, 0), App.Vector(0, 0, 1), 1.2), False)
sketch25.addConstraint(Sketcher.Constraint("Diameter", 0, Q("2.5 mm")))
sketch25.addConstraint(Sketcher.Constraint("DistanceX", -1, 1, 0, 3, Q("12.374369 mm")))
sketch25.addConstraint(Sketcher.Constraint("DistanceY", 0, 3, -1, 1, Q("12.374369 mm")))
doc.recompute()
hole18 = doc.addObject("PartDesign::Hole", "Hole017")
body.addObject(hole18)
hole18.Profile = sketch25
hole18.ThreadType = "None"
hole18.Diameter = 2.5
hole18.DepthType = "ThroughAll"
hole18.Reversed = True

# Sketch on XZ plane
sketch26 = doc.addObject("Sketcher::SketchObject", "Sketch025")
body.addObject(sketch26)
sketch26.AttachmentSupport = (doc.XZ_Plane, [""])
sketch26.MapMode = "FlatFace"
sketch26.AttachmentOffset = App.Placement(App.Vector(0, 0, -18.5), App.Rotation())
sketch26.addGeometry(Part.Circle(App.Vector(-12.4, -12.4, 0), App.Vector(0, 0, 1), 1.2), False)
sketch26.addConstraint(Sketcher.Constraint("Diameter", 0, Q("2.5 mm")))
sketch26.addConstraint(Sketcher.Constraint("DistanceX", 0, 3, -1, 1, Q("12.374369 mm")))
sketch26.addConstraint(Sketcher.Constraint("DistanceY", 0, 3, -1, 1, Q("12.374369 mm")))
doc.recompute()
hole19 = doc.addObject("PartDesign::Hole", "Hole018")
body.addObject(hole19)
hole19.Profile = sketch26
hole19.ThreadType = "None"
hole19.Diameter = 2.5
hole19.DepthType = "ThroughAll"
hole19.Reversed = True

# Sketch on XZ plane
sketch27 = doc.addObject("Sketcher::SketchObject", "Sketch026")
body.addObject(sketch27)
sketch27.AttachmentSupport = (doc.XZ_Plane, [""])
sketch27.MapMode = "FlatFace"
sketch27.AttachmentOffset = App.Placement(App.Vector(0, 0, -18.5), App.Rotation())
sketch27.addGeometry(Part.Circle(App.Vector(-12.4, 12.4, 0), App.Vector(0, 0, 1), 1.2), False)
sketch27.addConstraint(Sketcher.Constraint("Diameter", 0, Q("2.5 mm")))
sketch27.addConstraint(Sketcher.Constraint("DistanceX", 0, 3, -1, 1, Q("12.374369 mm")))
sketch27.addConstraint(Sketcher.Constraint("DistanceY", -1, 1, 0, 3, Q("12.374369 mm")))
doc.recompute()
hole20 = doc.addObject("PartDesign::Hole", "Hole019")
body.addObject(hole20)
hole20.Profile = sketch27
hole20.ThreadType = "None"
hole20.Diameter = 2.5
hole20.DepthType = "ThroughAll"
hole20.Reversed = True

# Sketch on XZ plane
sketch28 = doc.addObject("Sketcher::SketchObject", "Sketch027")
body.addObject(sketch28)
sketch28.AttachmentSupport = (doc.XZ_Plane, [""])
sketch28.MapMode = "FlatFace"
sketch28.AttachmentOffset = App.Placement(App.Vector(0, 0, -18.5), App.Rotation())
sketch28.addGeometry(Part.Circle(App.Vector(0, -17.5, 0), App.Vector(0, 0, 1), 1.2), False)
sketch28.addConstraint(Sketcher.Constraint("PointOnObject", 0, 3, -2))
sketch28.addConstraint(Sketcher.Constraint("Diameter", 0, Q("2.5 mm")))
sketch28.addConstraint(Sketcher.Constraint("DistanceY", 0, 3, -1, 1, Q("17.5 mm")))
doc.recompute()
hole21 = doc.addObject("PartDesign::Hole", "Hole020")
body.addObject(hole21)
hole21.Profile = sketch28
hole21.ThreadType = "None"
hole21.Diameter = 2.5
hole21.DepthType = "ThroughAll"
hole21.Reversed = True

# Sketch on XZ plane
sketch29 = doc.addObject("Sketcher::SketchObject", "Sketch028")
body.addObject(sketch29)
sketch29.AttachmentSupport = (doc.XZ_Plane, [""])
sketch29.MapMode = "FlatFace"
sketch29.AttachmentOffset = App.Placement(App.Vector(0, 0, -18.5), App.Rotation())
sketch29.addGeometry(Part.Circle(App.Vector(-17.5, 0, 0), App.Vector(0, 0, 1), 1.2), False)
sketch29.addConstraint(Sketcher.Constraint("PointOnObject", 0, 3, -1))
sketch29.addConstraint(Sketcher.Constraint("Diameter", 0, Q("2.5 mm")))
sketch29.addConstraint(Sketcher.Constraint("DistanceX", 0, 3, -1, 1, Q("17.5 mm")))
doc.recompute()
hole22 = doc.addObject("PartDesign::Hole", "Hole021")
body.addObject(hole22)
hole22.Profile = sketch29
hole22.ThreadType = "None"
hole22.Diameter = 2.5
hole22.DepthType = "ThroughAll"
hole22.Reversed = True

# Sketch on XZ plane
sketch30 = doc.addObject("Sketcher::SketchObject", "Sketch029")
body.addObject(sketch30)
sketch30.AttachmentSupport = (doc.XZ_Plane, [""])
sketch30.MapMode = "FlatFace"
sketch30.AttachmentOffset = App.Placement(App.Vector(0, 0, -18.5), App.Rotation())
sketch30.addGeometry(Part.Circle(App.Vector(0, 17.5, 0), App.Vector(0, 0, 1), 1.2), False)
sketch30.addConstraint(Sketcher.Constraint("PointOnObject", 0, 3, -2))
sketch30.addConstraint(Sketcher.Constraint("Diameter", 0, Q("2.5 mm")))
sketch30.addConstraint(Sketcher.Constraint("DistanceY", -1, 1, 0, 3, Q("17.5 mm")))
doc.recompute()
hole23 = doc.addObject("PartDesign::Hole", "Hole022")
body.addObject(hole23)
hole23.Profile = sketch30
hole23.ThreadType = "None"
hole23.Diameter = 2.5
hole23.DepthType = "ThroughAll"
hole23.Reversed = True

# Sketch on XZ plane
sketch31 = doc.addObject("Sketcher::SketchObject", "Sketch030")
body.addObject(sketch31)
sketch31.AttachmentSupport = (doc.XZ_Plane, [""])
sketch31.MapMode = "FlatFace"
sketch31.AttachmentOffset = App.Placement(App.Vector(0, 0, -18.5), App.Rotation())
sketch31.addGeometry(Part.Circle(App.Vector(-12.4, -12.4, 0), App.Vector(0, 0, 1), 1.2), False)
sketch31.addConstraint(Sketcher.Constraint("Diameter", 0, Q("2.5 mm")))
sketch31.addConstraint(Sketcher.Constraint("DistanceX", 0, 3, -1, 1, Q("12.374369 mm")))
sketch31.addConstraint(Sketcher.Constraint("DistanceY", 0, 3, -1, 1, Q("12.374369 mm")))
doc.recompute()
hole24 = doc.addObject("PartDesign::Hole", "Hole023")
body.addObject(hole24)
hole24.Profile = sketch31
hole24.ThreadType = "None"
hole24.Diameter = 2.5
hole24.DepthType = "ThroughAll"
hole24.Reversed = True

# Sketch on XZ plane
sketch32 = doc.addObject("Sketcher::SketchObject", "Sketch031")
body.addObject(sketch32)
sketch32.AttachmentSupport = (doc.XZ_Plane, [""])
sketch32.MapMode = "FlatFace"
sketch32.AttachmentOffset = App.Placement(App.Vector(0, 0, -18.5), App.Rotation())
sketch32.addGeometry(Part.Circle(App.Vector(-12.4, 12.4, 0), App.Vector(0, 0, 1), 1.2), False)
sketch32.addConstraint(Sketcher.Constraint("Diameter", 0, Q("2.5 mm")))
sketch32.addConstraint(Sketcher.Constraint("DistanceX", 0, 3, -1, 1, Q("12.374369 mm")))
sketch32.addConstraint(Sketcher.Constraint("DistanceY", -1, 1, 0, 3, Q("12.374369 mm")))
doc.recompute()
hole25 = doc.addObject("PartDesign::Hole", "Hole024")
body.addObject(hole25)
hole25.Profile = sketch32
hole25.ThreadType = "None"
hole25.Diameter = 2.5
hole25.DepthType = "ThroughAll"
hole25.Reversed = True

# Sketch on XZ plane
sketch33 = doc.addObject("Sketcher::SketchObject", "Sketch032")
body.addObject(sketch33)
sketch33.AttachmentSupport = (doc.XZ_Plane, [""])
sketch33.MapMode = "FlatFace"
sketch33.AttachmentOffset = App.Placement(App.Vector(0, 0, -18.5), App.Rotation())
sketch33.addGeometry(Part.Circle(App.Vector(12.4, 12.4, 0), App.Vector(0, 0, 1), 1.2), False)
sketch33.addConstraint(Sketcher.Constraint("Diameter", 0, Q("2.5 mm")))
sketch33.addConstraint(Sketcher.Constraint("DistanceX", -1, 1, 0, 3, Q("12.374369 mm")))
sketch33.addConstraint(Sketcher.Constraint("DistanceY", -1, 1, 0, 3, Q("12.374369 mm")))
doc.recompute()
hole26 = doc.addObject("PartDesign::Hole", "Hole025")
body.addObject(hole26)
hole26.Profile = sketch33
hole26.ThreadType = "None"
hole26.Diameter = 2.5
hole26.DepthType = "ThroughAll"
hole26.Reversed = True

doc.recompute()
